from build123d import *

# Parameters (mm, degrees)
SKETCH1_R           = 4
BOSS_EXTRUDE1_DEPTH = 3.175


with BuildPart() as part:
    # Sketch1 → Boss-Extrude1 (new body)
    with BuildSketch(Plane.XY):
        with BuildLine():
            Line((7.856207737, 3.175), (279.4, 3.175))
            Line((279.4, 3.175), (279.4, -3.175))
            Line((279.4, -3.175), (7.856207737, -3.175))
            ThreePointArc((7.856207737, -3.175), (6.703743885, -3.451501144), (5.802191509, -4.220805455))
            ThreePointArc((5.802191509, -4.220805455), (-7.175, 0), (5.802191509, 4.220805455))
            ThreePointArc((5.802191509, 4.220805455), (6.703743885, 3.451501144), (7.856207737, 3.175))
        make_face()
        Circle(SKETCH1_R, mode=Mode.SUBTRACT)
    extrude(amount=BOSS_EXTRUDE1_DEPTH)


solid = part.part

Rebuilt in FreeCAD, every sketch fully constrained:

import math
import FreeCAD as App
import Part
import Sketcher

V = App.Vector
Q = App.Units.Quantity

doc = App.newDocument("Part")
body = doc.addObject("PartDesign::Body", "Body")

# Sketch on XY plane
sketch1 = doc.addObject("Sketcher::SketchObject", "Sketch")
body.addObject(sketch1)
sketch1.AttachmentSupport = (doc.XY_Plane, [""])
sketch1.MapMode = "FlatFace"
sketch1.addGeometry(Part.LineSegment(V(279.4, 3.2, 0), V(7.9, 3.2, 0)), False)
sketch1.addGeometry(Part.ArcOfCircle(Part.Circle(V(7.9, 5.7, 0), V(0, 0, 1), 2.5), math.radians(-144), math.radians(-90)), False)
sketch1.addGeometry(Part.ArcOfCircle(Part.Circle(V(0, 0, 0), V(0, 0, 1), 7.2), math.radians(36), math.radians(324)), False)
sketch1.addGeometry(Part.ArcOfCircle(Part.Circle(V(7.9, -5.7, 0), V(0, 0, 1), 2.5), math.radians(90), math.radians(144)), False)
sketch1.addGeometry(Part.LineSegment(V(7.9, -3.2, 0), V(279.4, -3.2, 0)), False)
sketch1.addGeometry(Part.LineSegment(V(279.4, -3.2, 0), V(279.4, 3.2, 0)), False)
sketch1.addGeometry(Part.Circle(V(0, 0, 0), V(0, 0, 1), 4), False)
sketch1.addConstraint(Sketcher.Constraint("Tangent", 0, 2, 1, 2))
sketch1.addConstraint(Sketcher.Constraint("Tangent", 1, 1, 2, 1))
sketch1.addConstraint(Sketcher.Constraint("Tangent", 2, 2, 3, 2))
sketch1.addConstraint(Sketcher.Constraint("Tangent", 3, 1, 4, 1))
sketch1.addConstraint(Sketcher.Constraint("Coincident", 4, 2, 5, 1))
sketch1.addConstraint(Sketcher.Constraint("Coincident", 5, 2, 0, 1))
sketch1.addConstraint(Sketcher.Constraint("Horizontal", 0))
sketch1.addConstraint(Sketcher.Constraint("Horizontal", 4))
sketch1.addConstraint(Sketcher.Constraint("Vertical", 5))
sketch1.addConstraint(Sketcher.Constraint("Coincident", 2, 3, -1, 1))
sketch1.addConstraint(Sketcher.Constraint("Coincident", 6, 3, -1, 1))
sketch1.addConstraint(Sketcher.Constraint("Equal", 1, 3))
sketch1.addConstraint(Sketcher.Constraint("Vertical", 1, 3, 3, 3))
sketch1.addConstraint(Sketcher.Constraint("Radius", 1, Q("0.1 in")))
sketch1.addConstraint(Sketcher.Constraint("DistanceX", -1, 1, 4, 2, Q("11 in")))
sketch1.addConstraint(Sketcher.Constraint("DistanceY", 5, 1, 5, 2, Q("0.25 in")))
sketch1.addConstraint(Sketcher.Constraint("Diameter", 6, Q("8 mm")))
sketch1.addConstraint(Sketcher.Constraint("Radius", 2, Q("7.175 mm")))
pad1 = doc.addObject("PartDesign::Pad", "Pad")
body.addObject(pad1)
pad1.Profile = sketch1
pad1.Length = Q("0.125 in")

doc.recompute()
